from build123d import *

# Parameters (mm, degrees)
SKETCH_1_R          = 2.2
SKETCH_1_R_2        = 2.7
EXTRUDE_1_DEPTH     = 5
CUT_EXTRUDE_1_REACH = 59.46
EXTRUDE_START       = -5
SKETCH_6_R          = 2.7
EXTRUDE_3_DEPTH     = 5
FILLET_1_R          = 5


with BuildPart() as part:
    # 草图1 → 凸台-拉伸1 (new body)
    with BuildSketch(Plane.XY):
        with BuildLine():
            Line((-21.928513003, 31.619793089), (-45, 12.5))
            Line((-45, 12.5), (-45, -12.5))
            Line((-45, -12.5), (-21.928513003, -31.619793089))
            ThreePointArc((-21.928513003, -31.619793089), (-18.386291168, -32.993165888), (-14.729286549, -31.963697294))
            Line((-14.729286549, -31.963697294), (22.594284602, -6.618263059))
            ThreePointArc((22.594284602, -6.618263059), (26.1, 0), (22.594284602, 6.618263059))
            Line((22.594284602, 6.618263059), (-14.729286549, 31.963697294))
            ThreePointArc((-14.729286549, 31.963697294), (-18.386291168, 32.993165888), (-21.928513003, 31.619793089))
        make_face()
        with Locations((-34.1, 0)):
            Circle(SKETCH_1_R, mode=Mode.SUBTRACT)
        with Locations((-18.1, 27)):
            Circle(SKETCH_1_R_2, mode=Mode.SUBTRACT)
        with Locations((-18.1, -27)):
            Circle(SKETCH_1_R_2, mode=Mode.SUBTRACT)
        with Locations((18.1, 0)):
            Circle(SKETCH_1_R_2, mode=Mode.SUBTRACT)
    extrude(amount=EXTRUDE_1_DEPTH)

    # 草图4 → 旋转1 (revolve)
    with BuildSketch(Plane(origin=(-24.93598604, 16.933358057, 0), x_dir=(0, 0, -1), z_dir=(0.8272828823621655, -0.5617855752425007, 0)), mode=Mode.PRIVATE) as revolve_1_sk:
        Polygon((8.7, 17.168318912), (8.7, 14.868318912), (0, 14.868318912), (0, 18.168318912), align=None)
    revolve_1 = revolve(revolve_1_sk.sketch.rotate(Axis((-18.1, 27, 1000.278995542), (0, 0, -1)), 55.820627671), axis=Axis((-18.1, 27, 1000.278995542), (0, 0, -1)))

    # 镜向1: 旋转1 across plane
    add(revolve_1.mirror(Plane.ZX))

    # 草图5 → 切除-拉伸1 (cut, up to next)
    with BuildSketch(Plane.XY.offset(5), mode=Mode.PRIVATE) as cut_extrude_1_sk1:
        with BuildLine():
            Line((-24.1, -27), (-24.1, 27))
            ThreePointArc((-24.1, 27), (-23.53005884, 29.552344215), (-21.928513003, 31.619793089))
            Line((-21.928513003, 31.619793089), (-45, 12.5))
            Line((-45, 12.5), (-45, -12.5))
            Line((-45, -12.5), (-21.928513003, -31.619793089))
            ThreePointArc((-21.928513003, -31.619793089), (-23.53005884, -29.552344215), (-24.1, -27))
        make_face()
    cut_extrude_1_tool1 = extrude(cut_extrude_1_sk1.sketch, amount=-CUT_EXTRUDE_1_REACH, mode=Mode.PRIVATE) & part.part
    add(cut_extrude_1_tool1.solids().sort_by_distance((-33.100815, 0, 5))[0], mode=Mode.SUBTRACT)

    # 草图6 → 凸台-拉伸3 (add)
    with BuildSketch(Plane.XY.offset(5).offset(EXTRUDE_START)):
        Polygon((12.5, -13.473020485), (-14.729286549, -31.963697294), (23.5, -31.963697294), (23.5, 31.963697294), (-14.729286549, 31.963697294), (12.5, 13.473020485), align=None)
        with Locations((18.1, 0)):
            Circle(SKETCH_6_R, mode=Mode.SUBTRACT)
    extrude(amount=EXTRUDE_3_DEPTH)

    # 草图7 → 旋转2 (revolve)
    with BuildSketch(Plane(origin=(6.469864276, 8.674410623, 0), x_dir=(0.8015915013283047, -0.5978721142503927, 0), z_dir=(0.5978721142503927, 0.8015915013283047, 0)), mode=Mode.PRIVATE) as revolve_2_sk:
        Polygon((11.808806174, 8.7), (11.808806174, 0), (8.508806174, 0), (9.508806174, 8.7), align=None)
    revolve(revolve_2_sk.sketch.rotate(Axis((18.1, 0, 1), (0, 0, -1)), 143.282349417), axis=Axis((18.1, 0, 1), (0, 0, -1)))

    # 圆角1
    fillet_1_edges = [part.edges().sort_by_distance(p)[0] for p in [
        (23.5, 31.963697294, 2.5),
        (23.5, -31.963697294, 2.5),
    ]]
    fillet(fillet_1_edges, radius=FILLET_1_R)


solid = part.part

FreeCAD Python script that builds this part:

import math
import FreeCAD as App
import Part
import Sketcher
from FreeCAD import Vector
Q = App.Units.Quantity


def edges_at(feature, points):
    """Names of the edges that pass closest to the given points."""
    edges = feature.Shape.Edges
    near = lambda p: min(range(len(edges)), key=lambda i: edges[i].distToShape(Part.Vertex(*p))[0])
    return sorted({f"Edge{near(p) + 1}" for p in points})


def add_polygon(sketch, points):
    """Adds a closed chain of lines whose ends are joined by coincident constraints."""
    first, n = sketch.GeometryCount, len(points)
    for a, b in zip(points, points[1:] + points[:1]):
        sketch.addGeometry(Part.LineSegment(App.Vector(*a, 0), App.Vector(*b, 0)), False)
    for i in range(n):
        sketch.addConstraint(Sketcher.Constraint("Coincident", first + i, 2, first + (i + 1) % n, 1))

doc = App.newDocument("Part")
body = doc.addObject("PartDesign::Body", "Body")

# Sketch on XY plane
sketch1 = body.newObject("Sketcher::SketchObject", "Sketch")
sketch1.AttachmentSupport = (doc.getObject("XY_Plane"), [""])
sketch1.MapMode = "FlatFace"
sketch1.addGeometry([
    Part.LineSegment(Vector(-21.928513, 31.619793, 0), Vector(-45, 12.5, 0)),  # 0
    Part.LineSegment(Vector(-45, 12.5, 0), Vector(-45, -12.5, 0)),  # 1
    Part.LineSegment(Vector(-45, -12.5, 0), Vector(-21.928513, -31.619793, 0)),  # 2
    Part.ArcOfCircle(Part.Circle(Vector(-18.1, -27, 0), Vector(0, 0, 1), 6), math.radians(-129.649208), math.radians(-55.820628)),  # 3
    Part.LineSegment(Vector(-14.729287, -31.963697, 0), Vector(22.594285, -6.618263, 0)),  # 4
    Part.ArcOfCircle(Part.Circle(Vector(18.1, 0, 0), Vector(0, 0, 1), 8), math.radians(-55.820628), math.radians(55.820628)),  # 5
    Part.LineSegment(Vector(22.594285, 6.618263, 0), Vector(-14.729287, 31.963697, 0)),  # 6
    Part.ArcOfCircle(Part.Circle(Vector(-18.1, 27, 0), Vector(0, 0, 1), 6), math.radians(55.820628), math.radians(129.649208)),  # 7
    Part.Circle(Vector(-18.1, -27, 0), Vector(0, 0, 1), 2.7),  # 8
    Part.Circle(Vector(-34.1, 0, 0), Vector(0, 0, 1), 2.2),  # 9
    Part.Circle(Vector(-18.1, 27, 0), Vector(0, 0, 1), 2.7),  # 10
    Part.Circle(Vector(18.1, 0, 0), Vector(0, 0, 1), 2.7),  # 11
], False)
sketch1.addConstraint([
    Sketcher.Constraint("Coincident", 0, 2, 1, 1),
    Sketcher.Constraint("Coincident", 1, 2, 2, 1),
    Sketcher.Constraint("Tangent", 2, 2, 3, 1),
    Sketcher.Constraint("Tangent", 3, 2, 4, 1),
    Sketcher.Constraint("Tangent", 4, 2, 5, 1),
    Sketcher.Constraint("Tangent", 5, 2, 6, 1),
    Sketcher.Constraint("Tangent", 6, 2, 7, 1),
    Sketcher.Constraint("Tangent", 7, 2, 0, 1),
    Sketcher.Constraint("Vertical", 1),
    Sketcher.Constraint("Coincident", 8, 3, 3, 3),
    Sketcher.Constraint("Coincident", 10, 3, 7, 3),
    Sketcher.Constraint("Coincident", 11, 3, 5, 3),
    Sketcher.Constraint("Equal", 3, 7),
    Sketcher.Constraint("Equal", 8, 10),
    Sketcher.Constraint("Equal", 10, 11),
    Sketcher.Constraint("Symmetric", 3, 3, 7, 3, -1),
    Sketcher.Constraint("PointOnObject", 5, 3, -1),
    Sketcher.Constraint("PointOnObject", 9, 3, -1),
    Sketcher.Constraint("Vertical", 2, 2, 7, 2),
    Sketcher.Constraint("Radius", 3, Q("6 mm")),
    Sketcher.Constraint("Radius", 5, Q("8 mm")),
    Sketcher.Constraint("Diameter", 8, Q("5.4 mm")),
    Sketcher.Constraint("Diameter", 9, Q("4.4 mm")),
    Sketcher.Constraint("DistanceY", 1, 2, 1, 1, Q("25 mm")),
    Sketcher.Constraint("DistanceY", 3, 3, -1, 1, Q("27 mm")),
    Sketcher.Constraint("DistanceX", 0, 2, -1, 1, Q("45 mm")),
    Sketcher.Constraint("DistanceX", 9, 3, 3, 3, Q("16 mm")),
    Sketcher.Constraint("DistanceX", 3, 3, -1, 1, Q("18.1 mm")),
    Sketcher.Constraint("DistanceX", -1, 1, 5, 3, Q("18.1 mm")),
])
pad1 = body.newObject("PartDesign::Pad", "Pad")
pad1.Profile = sketch1
pad1.Length = 5

# Sketch on an angled plane
sketch2 = body.newObject("Sketcher::SketchObject", "Sketch001")
sketch2.Placement = App.Placement(Vector(-24.935986, 16.933358, 0), App.Rotation(Vector(0, 0, -1), Vector(0.561785575, 0.827282882, 0), Vector(0.827282882, -0.561785575, 0), "ZXY"))
add_polygon(sketch2, [(8.7, 14.868319), (8.7, 17.168319), (0, 18.168319), (0, 14.868319)])  # lines 0-3
sketch2.addGeometry(Part.LineSegment(Vector(0, 12.168319, 0), Vector(8.7, 12.168319, 0)), True)  # axis
sketch2.addConstraint([
    Sketcher.Constraint("Vertical", 0),
    Sketcher.Constraint("Vertical", 2),
    Sketcher.Constraint("Horizontal", 3),
    Sketcher.Constraint("Horizontal", 4),
    Sketcher.Constraint("PointOnObject", 1, 2, -2),
    Sketcher.Constraint("PointOnObject", 4, 1, -2),
    Sketcher.Constraint("Vertical", 3, 2, 4, 2),
    Sketcher.Constraint("DistanceX", 3, 1, 3, 2, Q("8.7 mm")),
    Sketcher.Constraint("DistanceY", 0, 1, 0, 2, Q("2.3 mm")),
    Sketcher.Constraint("DistanceY", 2, 2, 2, 1, Q("3.3 mm")),
    Sketcher.Constraint("DistanceY", 4, 1, 1, 2, Q("6 mm")),
    Sketcher.Constraint("DistanceY", -1, 1, 0, 2, Q("17.168319 mm")),
])
revolution = body.newObject("PartDesign::Revolution", "Revolution")
revolution.Profile = sketch2
revolution.ReferenceAxis = (sketch2, ["Axis0"])
revolution.Angle = 360
doc.recompute()

mirrored = body.newObject("PartDesign::Mirrored", "Mirrored")
mirrored.Originals = [revolution]
mirrored.MirrorPlane = (doc.getObject("XZ_Plane"), [""])
body.Tip = mirrored

# Sketch on XY plane
sketch3 = body.newObject("Sketcher::SketchObject", "Sketch002")
sketch3.AttachmentSupport = (doc.getObject("XY_Plane"), [""])
sketch3.MapMode = "FlatFace"
sketch3.AttachmentOffset = App.Placement(Vector(0, 0, 5), App.Rotation())
sketch3.addGeometry([
    Part.LineSegment(Vector(-24.1, -27, 0), Vector(-24.1, 27, 0)),  # 0
    Part.ArcOfCircle(Part.Circle(Vector(-18.1, 27, 0), Vector(0, 0, 1), 6), math.radians(129.649208), math.radians(180)),  # 1
    Part.LineSegment(Vector(-21.928513, 31.619793, 0), Vector(-45, 12.5, 0)),  # 2
    Part.LineSegment(Vector(-45, 12.5, 0), Vector(-45, -12.5, 0)),  # 3
    Part.LineSegment(Vector(-45, -12.5, 0), Vector(-21.928513, -31.619793, 0)),  # 4
    Part.ArcOfCircle(Part.Circle(Vector(-18.1, -27, 0), Vector(0, 0, 1), 6), math.radians(-180), math.radians(-129.649208)),  # 5
], False)
sketch3.addConstraint([
    Sketcher.Constraint("Tangent", 0, 2, 1, 2),
    Sketcher.Constraint("Tangent", 1, 1, 2, 1),
    Sketcher.Constraint("Coincident", 2, 2, 3, 1),
    Sketcher.Constraint("Coincident", 3, 2, 4, 1),
    Sketcher.Constraint("Tangent", 4, 2, 5, 2),
    Sketcher.Constraint("Tangent", 5, 1, 0, 1),
    Sketcher.Constraint("Vertical", 0),
    Sketcher.Constraint("Vertical", 3),
    Sketcher.Constraint("Equal", 1, 5),
    Sketcher.Constraint("Symmetric", 1, 1, 4, 2, -1),
    Sketcher.Constraint("Radius", 1, Q("6 mm")),
    Sketcher.Constraint("DistanceY", 0, 1, 0, 2, Q("54 mm")),
    Sketcher.Constraint("DistanceY", 3, 2, 3, 1, Q("25 mm")),
    Sketcher.Constraint("DistanceX", 2, 2, -1, 1, Q("45 mm")),
    Sketcher.Constraint("DistanceX", 1, 3, -1, 1, Q("18.1 mm")),
])
pocket1 = body.newObject("PartDesign::Pocket", "Pocket")
pocket1.Profile = sketch3
pocket1.Length = 5

# Sketch on XY plane
sketch4 = body.newObject("Sketcher::SketchObject", "Sketch003")
sketch4.AttachmentSupport = (doc.getObject("XY_Plane"), [""])
sketch4.MapMode = "FlatFace"
add_polygon(sketch4, [(12.5, -13.47302), (-14.729287, -31.963697), (23.5, -31.963697), (23.5, 31.963697), (-14.729287, 31.963697), (12.5, 13.47302)])  # lines 0-5
sketch4.addGeometry(Part.Circle(Vector(18.1, 0, 0), Vector(0, 0, 1), 2.7), False)  # 6
sketch4.addConstraint([
    Sketcher.Constraint("Horizontal", 1),
    Sketcher.Constraint("Vertical", 2),
    Sketcher.Constraint("Horizontal", 3),
    Sketcher.Constraint("Vertical", 5),
    Sketcher.Constraint("Symmetric", 0, 2, 3, 2, -1),
    Sketcher.Constraint("PointOnObject", 6, 3, -1),
    Sketcher.Constraint("Equal", 0, 4),
    Sketcher.Constraint("Diameter", 6, Q("5.4 mm")),
    Sketcher.Constraint("DistanceX", 4, 2, 2, 2, Q("11 mm")),
    Sketcher.Constraint("DistanceX", -1, 1, 6, 3, Q("18.1 mm")),
    Sketcher.Constraint("DistanceX", -1, 1, 1, 2, Q("23.5 mm")),
    Sketcher.Constraint("DistanceY", 5, 2, 5, 1, Q("26.946041 mm")),
    Sketcher.Constraint("Distance", 0, Q("32.914118 mm")),
    Sketcher.Constraint("DistanceX", 1, 1, 1, 2, Q("38.229287 mm")),
])
pad2 = body.newObject("PartDesign::Pad", "Pad001")
pad2.Profile = sketch4
pad2.Length = 5

# Sketch on an angled plane
sketch5 = body.newObject("Sketcher::SketchObject", "Sketch004")
sketch5.Placement = App.Placement(Vector(6.469864, 8.674411, 0), App.Rotation(Vector(0.801591501, -0.597872114, 0), Vector(0, 0, -0.999999999), Vector(0.597872114, 0.801591501, 0), "ZXY"))
add_polygon(sketch5, [(11.808806, 0), (11.808806, 8.7), (9.508806, 8.7), (8.508806, 0)])  # lines 0-3
sketch5.addGeometry(Part.LineSegment(Vector(14.508806, 0, 0), Vector(14.508806, 8.7, 0)), True)  # axis
sketch5.addConstraint([
    Sketcher.Constraint("Vertical", 0),
    Sketcher.Constraint("Horizontal", 1),
    Sketcher.Constraint("Horizontal", 3),
    Sketcher.Constraint("Vertical", 4),
    Sketcher.Constraint("PointOnObject", 2, 2, -1),
    Sketcher.Constraint("PointOnObject", 4, 1, -1),
    Sketcher.Constraint("Horizontal", 1, 2, 4, 2),
    Sketcher.Constraint("DistanceX", 1, 2, 1, 1, Q("2.3 mm")),
    Sketcher.Constraint("DistanceX", 3, 1, 3, 2, Q("3.3 mm")),
    Sketcher.Constraint("DistanceY", 0, 1, 0, 2, Q("8.7 mm")),
    Sketcher.Constraint("DistanceX", 2, 2, 4, 1, Q("6 mm")),
    Sketcher.Constraint("DistanceX", -1, 1, 0, 2, Q("11.808806 mm")),
])
revolution2 = body.newObject("PartDesign::Revolution", "Revolution001")
revolution2.Profile = sketch5
revolution2.ReferenceAxis = (sketch5, ["Axis0"])
revolution2.Angle = 360
doc.recompute()

fillet = body.newObject("PartDesign::Fillet", "Fillet")
fillet.Base = (revolution2, edges_at(revolution2, [(23.5, 31.964, 2.5), (23.5, -31.964, 2.5)]))
fillet.Radius = 5

doc.recompute()
